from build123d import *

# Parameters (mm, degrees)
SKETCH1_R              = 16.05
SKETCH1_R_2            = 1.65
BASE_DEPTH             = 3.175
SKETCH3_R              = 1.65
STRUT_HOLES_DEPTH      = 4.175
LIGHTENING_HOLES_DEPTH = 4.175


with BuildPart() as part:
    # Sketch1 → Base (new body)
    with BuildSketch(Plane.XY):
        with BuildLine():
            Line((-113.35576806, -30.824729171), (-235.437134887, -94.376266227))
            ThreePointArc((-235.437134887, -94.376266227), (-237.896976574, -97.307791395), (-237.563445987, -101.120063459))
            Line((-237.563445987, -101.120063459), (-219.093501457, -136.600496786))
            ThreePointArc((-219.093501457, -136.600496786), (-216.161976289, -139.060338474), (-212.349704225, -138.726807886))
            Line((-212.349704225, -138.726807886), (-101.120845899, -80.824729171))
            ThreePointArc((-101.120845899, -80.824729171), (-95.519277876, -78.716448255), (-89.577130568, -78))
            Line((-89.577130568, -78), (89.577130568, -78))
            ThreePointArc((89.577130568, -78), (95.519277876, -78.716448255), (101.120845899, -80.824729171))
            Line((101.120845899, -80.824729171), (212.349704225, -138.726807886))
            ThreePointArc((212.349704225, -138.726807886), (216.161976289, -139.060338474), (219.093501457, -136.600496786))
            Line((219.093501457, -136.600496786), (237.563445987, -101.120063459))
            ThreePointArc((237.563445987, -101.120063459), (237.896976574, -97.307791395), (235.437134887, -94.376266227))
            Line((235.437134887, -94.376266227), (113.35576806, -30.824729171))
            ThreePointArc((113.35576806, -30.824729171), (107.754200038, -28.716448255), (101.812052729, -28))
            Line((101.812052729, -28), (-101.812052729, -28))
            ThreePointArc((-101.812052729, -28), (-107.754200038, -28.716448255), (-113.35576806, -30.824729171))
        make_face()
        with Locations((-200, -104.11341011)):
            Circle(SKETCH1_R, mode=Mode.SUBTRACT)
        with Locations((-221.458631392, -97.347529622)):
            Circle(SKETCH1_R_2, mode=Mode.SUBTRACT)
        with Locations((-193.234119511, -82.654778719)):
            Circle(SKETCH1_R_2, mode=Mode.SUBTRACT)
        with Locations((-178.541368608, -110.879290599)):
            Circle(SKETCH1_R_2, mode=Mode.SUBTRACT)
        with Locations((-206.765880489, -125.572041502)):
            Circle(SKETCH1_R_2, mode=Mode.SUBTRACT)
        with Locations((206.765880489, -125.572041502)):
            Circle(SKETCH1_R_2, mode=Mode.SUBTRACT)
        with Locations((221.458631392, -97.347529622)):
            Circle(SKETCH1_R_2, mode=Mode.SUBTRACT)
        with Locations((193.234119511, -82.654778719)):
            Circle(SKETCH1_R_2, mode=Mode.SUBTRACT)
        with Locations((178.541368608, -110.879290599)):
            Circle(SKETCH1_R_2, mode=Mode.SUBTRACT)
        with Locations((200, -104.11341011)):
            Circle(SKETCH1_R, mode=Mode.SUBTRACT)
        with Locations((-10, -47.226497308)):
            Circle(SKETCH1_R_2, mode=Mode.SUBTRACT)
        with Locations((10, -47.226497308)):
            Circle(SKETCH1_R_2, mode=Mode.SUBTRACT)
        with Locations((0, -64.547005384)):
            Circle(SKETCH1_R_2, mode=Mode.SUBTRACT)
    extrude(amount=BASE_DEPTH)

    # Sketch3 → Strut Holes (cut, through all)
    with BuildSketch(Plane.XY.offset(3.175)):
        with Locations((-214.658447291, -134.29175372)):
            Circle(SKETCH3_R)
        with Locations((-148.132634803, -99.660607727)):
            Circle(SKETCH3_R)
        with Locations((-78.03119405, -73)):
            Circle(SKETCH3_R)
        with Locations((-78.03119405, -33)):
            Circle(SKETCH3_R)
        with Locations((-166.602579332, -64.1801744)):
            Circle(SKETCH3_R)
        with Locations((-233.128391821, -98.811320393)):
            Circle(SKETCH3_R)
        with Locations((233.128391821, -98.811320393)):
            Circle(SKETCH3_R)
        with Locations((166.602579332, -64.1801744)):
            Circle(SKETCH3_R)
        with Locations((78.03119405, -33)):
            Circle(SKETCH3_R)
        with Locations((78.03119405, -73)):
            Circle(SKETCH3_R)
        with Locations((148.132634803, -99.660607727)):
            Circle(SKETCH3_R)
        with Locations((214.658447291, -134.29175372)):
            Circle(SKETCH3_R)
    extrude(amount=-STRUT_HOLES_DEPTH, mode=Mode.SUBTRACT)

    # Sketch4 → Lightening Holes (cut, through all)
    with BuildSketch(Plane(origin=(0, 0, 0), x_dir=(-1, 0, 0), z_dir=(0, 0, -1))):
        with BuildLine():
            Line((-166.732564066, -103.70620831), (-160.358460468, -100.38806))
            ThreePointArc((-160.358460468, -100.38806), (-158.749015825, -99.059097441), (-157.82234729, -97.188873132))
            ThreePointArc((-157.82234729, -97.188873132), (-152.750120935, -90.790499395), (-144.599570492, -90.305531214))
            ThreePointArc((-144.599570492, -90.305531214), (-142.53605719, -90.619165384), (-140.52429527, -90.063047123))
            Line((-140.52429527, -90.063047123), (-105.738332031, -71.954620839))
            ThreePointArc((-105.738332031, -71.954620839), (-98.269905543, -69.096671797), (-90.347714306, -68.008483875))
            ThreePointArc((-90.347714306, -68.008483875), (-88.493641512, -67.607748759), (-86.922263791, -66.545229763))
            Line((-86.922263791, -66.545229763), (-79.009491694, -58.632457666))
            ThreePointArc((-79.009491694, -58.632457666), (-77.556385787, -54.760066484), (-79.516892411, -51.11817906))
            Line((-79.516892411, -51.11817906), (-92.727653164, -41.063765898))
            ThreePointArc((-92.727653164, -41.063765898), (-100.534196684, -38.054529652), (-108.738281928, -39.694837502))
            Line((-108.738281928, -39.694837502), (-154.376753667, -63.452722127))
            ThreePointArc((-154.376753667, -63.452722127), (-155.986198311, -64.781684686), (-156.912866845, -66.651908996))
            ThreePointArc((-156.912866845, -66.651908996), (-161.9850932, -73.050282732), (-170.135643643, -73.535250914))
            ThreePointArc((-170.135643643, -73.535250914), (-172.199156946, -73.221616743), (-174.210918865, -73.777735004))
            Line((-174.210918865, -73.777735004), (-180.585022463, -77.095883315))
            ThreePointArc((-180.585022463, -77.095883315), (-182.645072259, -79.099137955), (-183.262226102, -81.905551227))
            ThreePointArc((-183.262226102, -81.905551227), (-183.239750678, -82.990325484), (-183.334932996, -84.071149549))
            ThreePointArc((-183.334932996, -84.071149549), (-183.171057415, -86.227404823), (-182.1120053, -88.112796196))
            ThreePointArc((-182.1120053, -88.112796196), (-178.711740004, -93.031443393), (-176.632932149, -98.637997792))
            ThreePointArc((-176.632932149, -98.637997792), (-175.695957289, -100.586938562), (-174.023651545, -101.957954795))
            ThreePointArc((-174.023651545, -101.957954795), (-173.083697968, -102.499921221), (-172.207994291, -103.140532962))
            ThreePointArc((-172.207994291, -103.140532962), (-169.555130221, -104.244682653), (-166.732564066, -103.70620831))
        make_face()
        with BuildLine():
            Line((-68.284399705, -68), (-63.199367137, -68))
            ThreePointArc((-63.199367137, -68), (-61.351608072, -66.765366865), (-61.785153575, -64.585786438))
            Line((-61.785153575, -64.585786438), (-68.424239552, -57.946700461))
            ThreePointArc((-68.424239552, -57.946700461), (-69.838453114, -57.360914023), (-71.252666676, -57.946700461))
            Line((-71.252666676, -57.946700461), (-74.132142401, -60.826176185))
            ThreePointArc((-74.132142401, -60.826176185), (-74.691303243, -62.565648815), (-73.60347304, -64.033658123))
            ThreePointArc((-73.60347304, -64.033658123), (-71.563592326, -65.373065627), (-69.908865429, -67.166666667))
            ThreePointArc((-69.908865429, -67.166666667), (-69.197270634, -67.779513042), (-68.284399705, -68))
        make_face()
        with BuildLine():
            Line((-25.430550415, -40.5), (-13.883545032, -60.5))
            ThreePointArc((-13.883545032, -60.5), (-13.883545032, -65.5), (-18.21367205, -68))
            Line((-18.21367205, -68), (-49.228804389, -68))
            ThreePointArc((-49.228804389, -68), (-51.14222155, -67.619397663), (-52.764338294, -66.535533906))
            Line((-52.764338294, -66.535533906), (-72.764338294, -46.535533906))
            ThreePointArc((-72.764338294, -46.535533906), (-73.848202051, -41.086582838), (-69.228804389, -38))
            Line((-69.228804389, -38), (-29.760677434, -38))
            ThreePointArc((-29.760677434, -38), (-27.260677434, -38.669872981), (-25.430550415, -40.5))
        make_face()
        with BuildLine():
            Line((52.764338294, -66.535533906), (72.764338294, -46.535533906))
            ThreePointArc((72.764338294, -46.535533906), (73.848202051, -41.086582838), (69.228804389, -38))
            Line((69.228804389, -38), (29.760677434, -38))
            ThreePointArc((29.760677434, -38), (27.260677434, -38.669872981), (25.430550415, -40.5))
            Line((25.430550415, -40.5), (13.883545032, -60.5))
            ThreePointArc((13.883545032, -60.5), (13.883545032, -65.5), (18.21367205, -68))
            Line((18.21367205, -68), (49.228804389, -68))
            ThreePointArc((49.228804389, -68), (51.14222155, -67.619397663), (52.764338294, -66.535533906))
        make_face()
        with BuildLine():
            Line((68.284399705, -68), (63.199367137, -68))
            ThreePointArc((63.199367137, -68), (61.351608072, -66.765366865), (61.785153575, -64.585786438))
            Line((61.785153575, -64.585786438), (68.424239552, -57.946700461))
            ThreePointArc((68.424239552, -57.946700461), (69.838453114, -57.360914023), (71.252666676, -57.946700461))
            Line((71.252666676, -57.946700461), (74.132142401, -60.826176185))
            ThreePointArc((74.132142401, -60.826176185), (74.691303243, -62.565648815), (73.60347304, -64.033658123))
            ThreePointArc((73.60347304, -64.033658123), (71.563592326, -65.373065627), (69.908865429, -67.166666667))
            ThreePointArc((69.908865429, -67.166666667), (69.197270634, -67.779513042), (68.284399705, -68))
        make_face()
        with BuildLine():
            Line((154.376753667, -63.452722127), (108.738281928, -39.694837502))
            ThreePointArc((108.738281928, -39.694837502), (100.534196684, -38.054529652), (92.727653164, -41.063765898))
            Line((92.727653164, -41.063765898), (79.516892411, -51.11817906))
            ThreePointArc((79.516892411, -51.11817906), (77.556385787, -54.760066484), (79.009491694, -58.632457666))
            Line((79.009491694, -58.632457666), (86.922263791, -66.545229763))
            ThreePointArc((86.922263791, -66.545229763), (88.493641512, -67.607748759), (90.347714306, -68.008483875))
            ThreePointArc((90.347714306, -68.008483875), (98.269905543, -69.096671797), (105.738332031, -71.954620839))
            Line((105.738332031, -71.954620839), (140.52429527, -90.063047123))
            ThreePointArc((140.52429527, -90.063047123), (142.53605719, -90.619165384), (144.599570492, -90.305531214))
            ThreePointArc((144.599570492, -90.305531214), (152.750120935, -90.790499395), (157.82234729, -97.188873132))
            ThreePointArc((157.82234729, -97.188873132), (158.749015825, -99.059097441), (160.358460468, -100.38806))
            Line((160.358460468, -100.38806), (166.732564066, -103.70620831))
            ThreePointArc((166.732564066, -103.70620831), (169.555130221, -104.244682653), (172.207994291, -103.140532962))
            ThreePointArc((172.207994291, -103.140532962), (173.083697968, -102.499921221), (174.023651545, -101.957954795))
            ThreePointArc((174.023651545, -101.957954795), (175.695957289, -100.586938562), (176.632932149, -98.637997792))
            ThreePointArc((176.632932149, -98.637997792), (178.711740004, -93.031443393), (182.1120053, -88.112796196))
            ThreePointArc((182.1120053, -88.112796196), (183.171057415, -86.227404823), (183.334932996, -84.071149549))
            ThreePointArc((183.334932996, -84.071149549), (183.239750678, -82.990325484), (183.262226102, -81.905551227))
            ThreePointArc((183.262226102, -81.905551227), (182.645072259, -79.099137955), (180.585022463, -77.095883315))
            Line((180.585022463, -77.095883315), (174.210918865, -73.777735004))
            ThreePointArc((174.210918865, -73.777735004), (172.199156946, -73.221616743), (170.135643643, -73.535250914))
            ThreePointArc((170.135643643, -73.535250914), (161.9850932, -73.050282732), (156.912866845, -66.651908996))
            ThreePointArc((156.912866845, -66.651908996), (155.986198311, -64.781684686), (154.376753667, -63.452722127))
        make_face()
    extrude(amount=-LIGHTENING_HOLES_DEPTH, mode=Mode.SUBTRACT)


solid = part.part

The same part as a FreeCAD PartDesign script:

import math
import FreeCAD as App
import Part
import Sketcher

V = App.Vector
Q = App.Units.Quantity

doc = App.newDocument("Part")
body = doc.addObject("PartDesign::Body", "Body")

sketch1 = doc.addObject("Sketcher::SketchObject", "Sketch")
body.addObject(sketch1)
sketch1.AttachmentSupport = (doc.XY_Plane, [""])
sketch1.MapMode = "FlatFace"
sketch1.addGeometry(Part.LineSegment(V(-113.4, -30.8, 0), V(-235.4, -94.4, 0)), False)
sketch1.addGeometry(Part.ArcOfCircle(Part.Circle(V(-233.1, -98.8, 0), V(0, 0, 1), 5), math.radians(118), math.radians(207)), False)
sketch1.addGeometry(Part.LineSegment(V(-237.6, -101.1, 0), V(-219.1, -136.6, 0)), False)
sketch1.addGeometry(Part.ArcOfCircle(Part.Circle(V(-214.7, -134.3, 0), V(0, 0, 1), 5), math.radians(-153), math.radians(-62)), False)
sketch1.addGeometry(Part.LineSegment(V(-212.3, -138.7, 0), V(-101.1, -80.8, 0)), False)
sketch1.addGeometry(Part.ArcOfCircle(Part.Circle(V(-89.6, -103, 0), V(0, 0, 1), 25), math.radians(90), math.radians(117)), False)
sketch1.addGeometry(Part.LineSegment(V(-89.6, -78, 0), V(89.6, -78, 0)), False)
sketch1.addGeometry(Part.ArcOfCircle(Part.Circle(V(89.6, -103, 0), V(0, 0, 1), 25), math.radians(63), math.radians(90)), False)
sketch1.addGeometry(Part.LineSegment(V(101.1, -80.8, 0), V(212.3, -138.7, 0)), False)
sketch1.addGeometry(Part.ArcOfCircle(Part.Circle(V(214.7, -134.3, 0), V(0, 0, 1), 5), math.radians(-118), math.radians(-27)), False)
sketch1.addGeometry(Part.LineSegment(V(219.1, -136.6, 0), V(237.6, -101.1, 0)), False)
sketch1.addGeometry(Part.ArcOfCircle(Part.Circle(V(233.1, -98.8, 0), V(0, 0, 1), 5), math.radians(-27), math.radians(62)), False)
sketch1.addGeometry(Part.LineSegment(V(235.4, -94.4, 0), V(113.4, -30.8, 0)), False)
sketch1.addGeometry(Part.ArcOfCircle(Part.Circle(V(101.8, -53, 0), V(0, 0, 1), 25), math.radians(62), math.radians(90)), False)
sketch1.addGeometry(Part.LineSegment(V(101.8, -28, 0), V(-101.8, -28, 0)), False)
sketch1.addGeometry(Part.ArcOfCircle(Part.Circle(V(-101.8, -53, 0), V(0, 0, 1), 25), math.radians(90), math.radians(118)), False)
sketch1.addGeometry(Part.Circle(V(-206.8, -125.6, 0), V(0, 0, 1), 1.6), False)
sketch1.addGeometry(Part.Circle(V(-178.5, -110.9, 0), V(0, 0, 1), 1.6), False)
sketch1.addGeometry(Part.Circle(V(-200, -104.1, 0), V(0, 0, 1), 16.1), False)
sketch1.addGeometry(Part.Circle(V(-221.5, -97.3, 0), V(0, 0, 1), 1.6), False)
sketch1.addGeometry(Part.Circle(V(206.8, -125.6, 0), V(0, 0, 1), 1.6), False)
sketch1.addGeometry(Part.Circle(V(178.5, -110.9, 0), V(0, 0, 1), 1.6), False)
sketch1.addGeometry(Part.Circle(V(200, -104.1, 0), V(0, 0, 1), 16.1), False)
sketch1.addGeometry(Part.Circle(V(221.5, -97.3, 0), V(0, 0, 1), 1.6), False)
sketch1.addGeometry(Part.Circle(V(-193.2, -82.7, 0), V(0, 0, 1), 1.6), False)
sketch1.addGeometry(Part.Circle(V(-10, -47.2, 0), V(0, 0, 1), 1.6), False)
sketch1.addGeometry(Part.Circle(V(193.2, -82.7, 0), V(0, 0, 1), 1.6), False)
sketch1.addGeometry(Part.Circle(V(0, -64.5, 0), V(0, 0, 1), 1.6), False)
sketch1.addGeometry(Part.Circle(V(10, -47.2, 0), V(0, 0, 1), 1.6), False)
sketch1.addConstraint(Sketcher.Constraint("Tangent", 0, 2, 1, 1))
sketch1.addConstraint(Sketcher.Constraint("Tangent", 1, 2, 2, 1))
sketch1.addConstraint(Sketcher.Constraint("Tangent", 2, 2, 3, 1))
sketch1.addConstraint(Sketcher.Constraint("Tangent", 3, 2, 4, 1))
sketch1.addConstraint(Sketcher.Constraint("Tangent", 4, 2, 5, 2))
sketch1.addConstraint(Sketcher.Constraint("Tangent", 5, 1, 6, 1))
sketch1.addConstraint(Sketcher.Constraint("Tangent", 6, 2, 7, 2))
sketch1.addConstraint(Sketcher.Constraint("Tangent", 7, 1, 8, 1))
sketch1.addConstraint(Sketcher.Constraint("Tangent", 8, 2, 9, 1))
sketch1.addConstraint(Sketcher.Constraint("Tangent", 9, 2, 10, 1))
sketch1.addConstraint(Sketcher.Constraint("Tangent", 10, 2, 11, 1))
sketch1.addConstraint(Sketcher.Constraint("Tangent", 11, 2, 12, 1))
sketch1.addConstraint(Sketcher.Constraint("Tangent", 12, 2, 13, 1))
sketch1.addConstraint(Sketcher.Constraint("Tangent", 13, 2, 14, 1))
sketch1.addConstraint(Sketcher.Constraint("Tangent", 14, 2, 15, 1))
sketch1.addConstraint(Sketcher.Constraint("Tangent", 15, 2, 0, 1))
sketch1.addConstraint(Sketcher.Constraint("Horizontal", 6))
sketch1.addConstraint(Sketcher.Constraint("Horizontal", 14))
sketch1.addConstraint(Sketcher.Constraint("Equal", 1, 3))
sketch1.addConstraint(Sketcher.Constraint("Equal", 5, 7))
sketch1.addConstraint(Sketcher.Constraint("Equal", 3, 9))
sketch1.addConstraint(Sketcher.Constraint("Equal", 9, 11))
sketch1.addConstraint(Sketcher.Constraint("Equal", 7, 13))
sketch1.addConstraint(Sketcher.Constraint("Equal", 13, 15))
sketch1.addConstraint(Sketcher.Constraint("Equal", 16, 17))
sketch1.addConstraint(Sketcher.Constraint("Equal", 17, 19))
sketch1.addConstraint(Sketcher.Constraint("Equal", 19, 20))
sketch1.addConstraint(Sketcher.Constraint("Equal", 20, 21))
sketch1.addConstraint(Sketcher.Constraint("Equal", 18, 22))
sketch1.addConstraint(Sketcher.Constraint("Equal", 21, 23))
sketch1.addConstraint(Sketcher.Constraint("Equal", 23, 24))
sketch1.addConstraint(Sketcher.Constraint("Equal", 24, 25))
sketch1.addConstraint(Sketcher.Constraint("Equal", 25, 26))
sketch1.addConstraint(Sketcher.Constraint("Equal", 26, 27))
sketch1.addConstraint(Sketcher.Constraint("Equal", 27, 28))
sketch1.addConstraint(Sketcher.Constraint("Symmetric", 3, 3, 9, 3, -2))
sketch1.addConstraint(Sketcher.Constraint("Symmetric", 1, 3, 11, 3, -2))
sketch1.addConstraint(Sketcher.Constraint("Symmetric", 16, 3, 20, 3, -2))
sketch1.addConstraint(Sketcher.Constraint("Symmetric", 17, 3, 21, 3, -2))
sketch1.addConstraint(Sketcher.Constraint("Symmetric", 18, 3, 22, 3, -2))
sketch1.addConstraint(Sketcher.Constraint("Symmetric", 19, 3, 23, 3, -2))
sketch1.addConstraint(Sketcher.Constraint("Symmetric", 24, 3, 26, 3, -2))
sketch1.addConstraint(Sketcher.Constraint("Symmetric", 25, 3, 28, 3, -2))
sketch1.addConstraint(Sketcher.Constraint("PointOnObject", 27, 3, -2))
sketch1.addConstraint(Sketcher.Constraint("Perpendicular", 0, 2))
sketch1.addConstraint(Sketcher.Constraint("Perpendicular", 2, 4))
sketch1.addConstraint(Sketcher.Constraint("Perpendicular", 8, 10))
sketch1.addConstraint(Sketcher.Constraint("Perpendicular", 10, 12))
sketch1.addConstraint(Sketcher.Constraint("Radius", 1, Q("5 mm")))
sketch1.addConstraint(Sketcher.Constraint("Radius", 5, Q("25 mm")))
sketch1.addConstraint(Sketcher.Constraint("Diameter", 16, Q("3.3 mm")))
sketch1.addConstraint(Sketcher.Constraint("Diameter", 18, Q("32.1 mm")))
sketch1.addConstraint(Sketcher.Constraint("Distance", 2, Q("40 mm")))
sketch1.addConstraint(Sketcher.Constraint("DistanceY", 5, 3, -1, 1, Q("103 mm")))
sketch1.addConstraint(Sketcher.Constraint("DistanceY", 13, 3, -1, 1, Q("53 mm")))
sketch1.addConstraint(Sketcher.Constraint("DistanceX", 18, 3, -1, 1, Q("200 mm")))
sketch1.addConstraint(Sketcher.Constraint("DistanceX", 25, 3, -1, 1, Q("10 mm")))
sketch1.addConstraint(Sketcher.Constraint("Angle", 0, Q("-152.5 deg")))
sketch1.addConstraint(Sketcher.Constraint("DistanceX", 6, 1, 6, 2, Q("179.154261 mm")))
sketch1.addConstraint(Sketcher.Constraint("DistanceX", 2, 2, -1, 1, Q("219.093501 mm")))
sketch1.addConstraint(Sketcher.Constraint("DistanceX", 16, 3, -1, 1, Q("206.76588 mm")))
sketch1.addConstraint(Sketcher.Constraint("DistanceY", 16, 3, -1, 1, Q("125.572042 mm")))
sketch1.addConstraint(Sketcher.Constraint("DistanceX", 17, 3, -1, 1, Q("178.541369 mm")))
sketch1.addConstraint(Sketcher.Constraint("DistanceY", 17, 3, -1, 1, Q("110.879291 mm")))
sketch1.addConstraint(Sketcher.Constraint("DistanceY", 18, 3, -1, 1, Q("104.11341 mm")))
sketch1.addConstraint(Sketcher.Constraint("DistanceX", 19, 3, -1, 1, Q("221.458631 mm")))
sketch1.addConstraint(Sketcher.Constraint("DistanceY", 19, 3, -1, 1, Q("97.34753 mm")))
sketch1.addConstraint(Sketcher.Constraint("DistanceX", 24, 3, -1, 1, Q("193.23412 mm")))
sketch1.addConstraint(Sketcher.Constraint("DistanceY", 24, 3, -1, 1, Q("82.654779 mm")))
sketch1.addConstraint(Sketcher.Constraint("DistanceY", 27, 3, 25, 3, Q("17.320508 mm")))
sketch1.addConstraint(Sketcher.Constraint("DistanceY", 4, 2, 25, 3, Q("33.598232 mm")))
pad1 = doc.addObject("PartDesign::Pad", "Pad")
body.addObject(pad1)
pad1.Profile = sketch1
pad1.Length = 3.175

sketch2 = doc.addObject("Sketcher::SketchObject", "Sketch001")
body.addObject(sketch2)
sketch2.AttachmentSupport = (doc.XY_Plane, [""])
sketch2.MapMode = "FlatFace"
sketch2.AttachmentOffset = App.Placement(V(0, 0, 3.175), App.Rotation())
sketch2.addGeometry(Part.Circle(V(-214.7, -134.3, 0), V(0, 0, 1), 1.6), False)
sketch2.addGeometry(Part.Circle(V(-148.1, -99.7, 0), V(0, 0, 1), 1.6), False)
sketch2.addGeometry(Part.Circle(V(-78, -73, 0), V(0, 0, 1), 1.6), False)
sketch2.addGeometry(Part.Circle(V(-78, -33, 0), V(0, 0, 1), 1.6), False)
sketch2.addGeometry(Part.Circle(V(-166.6, -64.2, 0), V(0, 0, 1), 1.6), False)
sketch2.addGeometry(Part.Circle(V(-233.1, -98.8, 0), V(0, 0, 1), 1.6), False)
sketch2.addGeometry(Part.Circle(V(233.1, -98.8, 0), V(0, 0, 1), 1.6), False)
sketch2.addGeometry(Part.Circle(V(166.6, -64.2, 0), V(0, 0, 1), 1.6), False)
sketch2.addGeometry(Part.Circle(V(78, -33, 0), V(0, 0, 1), 1.6), False)
sketch2.addGeometry(Part.Circle(V(78, -73, 0), V(0, 0, 1), 1.6), False)
sketch2.addGeometry(Part.Circle(V(148.1, -99.7, 0), V(0, 0, 1), 1.6), False)
sketch2.addGeometry(Part.Circle(V(214.7, -134.3, 0), V(0, 0, 1), 1.6), False)
sketch2.addConstraint(Sketcher.Constraint("Equal", 0, 1))
sketch2.addConstraint(Sketcher.Constraint("Equal", 1, 2))
sketch2.addConstraint(Sketcher.Constraint("Equal", 2, 3))
sketch2.addConstraint(Sketcher.Constraint("Equal", 3, 4))
sketch2.addConstraint(Sketcher.Constraint("Equal", 4, 5))
sketch2.addConstraint(Sketcher.Constraint("Equal", 5, 6))
sketch2.addConstraint(Sketcher.Constraint("Equal", 6, 7))
sketch2.addConstraint(Sketcher.Constraint("Equal", 7, 8))
sketch2.addConstraint(Sketcher.Constraint("Equal", 8, 9))
sketch2.addConstraint(Sketcher.Constraint("Equal", 9, 10))
sketch2.addConstraint(Sketcher.Constraint("Equal", 10, 11))
sketch2.addConstraint(Sketcher.Constraint("Symmetric", 5, 3, 6, 3, -2))
sketch2.addConstraint(Sketcher.Constraint("Symmetric", 4, 3, 7, 3, -2))
sketch2.addConstraint(Sketcher.Constraint("Symmetric", 3, 3, 8, 3, -2))
sketch2.addConstraint(Sketcher.Constraint("Symmetric", 2, 3, 9, 3, -2))
sketch2.addConstraint(Sketcher.Constraint("Symmetric", 1, 3, 10, 3, -2))
sketch2.addConstraint(Sketcher.Constraint("Symmetric", 0, 3, 11, 3, -2))
sketch2.addConstraint(Sketcher.Constraint("Vertical", 2, 3, 3, 3))
sketch2.addConstraint(Sketcher.Constraint("Diameter", 0, Q("3.3 mm")))
sketch2.addConstraint(Sketcher.Constraint("DistanceY", 2, 3, -1, 1, Q("73 mm")))
sketch2.addConstraint(Sketcher.Constraint("DistanceY", 3, 3, -1, 1, Q("33 mm")))
sketch2.addConstraint(Sketcher.Constraint("DistanceX", 4, 3, -1, 1, Q("166.602579 mm")))
sketch2.addConstraint(Sketcher.Constraint("DistanceX", 5, 3, -1, 1, Q("233.128392 mm")))
sketch2.addConstraint(Sketcher.Constraint("DistanceY", 5, 3, -1, 1, Q("98.81132 mm")))
sketch2.addConstraint(Sketcher.Constraint("DistanceX", 1, 3, 2, 3, Q("70.101441 mm")))
sketch2.addConstraint(Sketcher.Constraint("DistanceY", 0, 3, 4, 3, Q("70.111579 mm")))
sketch2.addConstraint(Sketcher.Constraint("DistanceX", 0, 3, 6, 3, Q("447.786839 mm")))
sketch2.addConstraint(Sketcher.Constraint("DistanceX", 3, 3, 8, 3, Q("156.062388 mm")))
sketch2.addConstraint(Sketcher.Constraint("DistanceY", 0, 3, -1, 1, Q("134.291754 mm")))
sketch2.addConstraint(Sketcher.Constraint("DistanceY", 1, 3, -1, 1, Q("99.660608 mm")))
pocket1 = doc.addObject("PartDesign::Pocket", "Pocket")
body.addObject(pocket1)
pocket1.Profile = sketch2
pocket1.Type = "ThroughAll"

sketch3 = doc.addObject("Sketcher::SketchObject", "Sketch002")
body.addObject(sketch3)
sketch3.AttachmentSupport = (doc.XY_Plane, [""])
sketch3.MapMode = "FlatFace"
sketch3.addGeometry(Part.LineSegment(V(166.732564, -103.706208, 0), V(160.35846, -100.38806, 0)), False)
sketch3.addGeometry(Part.ArcOfCircle(Part.Circle(V(162.667204, -95.953006, 0), V(0, 0, 1), 5), math.radians(-165.689685), math.radians(-117.5)), False)
sketch3.addGeometry(Part.ArcOfCircle(Part.Circle(V(148.132635, -99.660608, 0), V(0, 0, 1), 10), math.radians(14.310315), math.radians(110.689685)), False)
sketch3.addGeometry(Part.ArcOfCircle(Part.Circle(V(142.833038, -85.627993, 0), V(0, 0, 1), 5), math.radians(-117.5), math.radians(-69.310315)), False)
sketch3.addGeometry(Part.LineSegment(V(140.524295, -90.063047, 0), V(105.738332, -71.954621, 0)), False)
sketch3.addGeometry(Part.ArcOfCircle(Part.Circle(V(89.577131, -103, 0), V(0, 0, 1), 35), math.radians(62.5), math.radians(88.738435)), False)
sketch3.addGeometry(Part.ArcOfCircle(Part.Circle(V(90.457798, -63.009696, 0), V(0, 0, 1), 5), math.radians(-135), math.radians(-91.261565)), False)
sketch3.addGeometry(Part.LineSegment(V(86.922264, -66.54523, 0), V(79.009492, -58.632458, 0)), False)
sketch3.addGeometry(Part.ArcOfCircle(Part.Circle(V(82.545026, -55.096924, 0), V(0, 0, 1), 5), math.radians(127.273948), math.radians(225)), False)
sketch3.addGeometry(Part.LineSegment(V(79.516892, -51.118179, 0), V(92.727653, -41.063766, 0)), False)
sketch3.addGeometry(Part.ArcOfCircle(Part.Circle(V(101.812053, -53, 0), V(0, 0, 1), 15), math.radians(62.5), math.radians(127.273948)), False)
sketch3.addGeometry(Part.LineSegment(V(108.738282, -39.694838, 0), V(154.376754, -63.452722, 0)), False)
sketch3.addGeometry(Part.ArcOfCircle(Part.Circle(V(152.068011, -67.887776, 0), V(0, 0, 1), 5), math.radians(14.310315), math.radians(62.5)), False)
sketch3.addGeometry(Part.ArcOfCircle(Part.Circle(V(166.602579, -64.180174, 0), V(0, 0, 1), 10), math.radians(-165.689685), math.radians(-69.310315)), False)
sketch3.addGeometry(Part.ArcOfCircle(Part.Circle(V(171.902176, -78.212789, 0), V(0, 0, 1), 5), math.radians(62.5), math.radians(110.689685)), False)
sketch3.addGeometry(Part.LineSegment(V(174.210919, -73.777735, 0), V(180.585022, -77.095883, 0)), False)
sketch3.addGeometry(Part.ArcOfCircle(Part.Circle(V(178.276279, -81.530937, 0), V(0, 0, 1), 5), math.radians(-4.296784), math.radians(62.5)), False)
sketch3.addGeometry(Part.ArcOfCircle(Part.Circle(V(193.234119, -82.654779, 0), V(0, 0, 1), 10), math.radians(175.703216), math.radians(188.142588)), False)
sketch3.addGeometry(Part.ArcOfCircle(Part.Circle(V(178.38534, -84.779335, 0), V(0, 0, 1), 5), math.radians(-41.812281), math.radians(8.142588)), False)
sketch3.addGeometry(Part.ArcOfCircle(Part.Circle(V(200, -104.11341, 0), V(0, 0, 1), 24), math.radians(138.187719), math.radians(166.812281)), False)
sketch3.addGeometry(Part.ArcOfCircle(Part.Circle(V(171.764793, -97.497287, 0), V(0, 0, 1), 5), math.radians(-63.142588), math.radians(-13.187719)), False)
sketch3.addGeometry(Part.ArcOfCircle(Part.Circle(V(178.541369, -110.879291, 0), V(0, 0, 1), 10), math.radians(116.857412), math.radians(129.296784)), False)
sketch3.addGeometry(Part.ArcOfCircle(Part.Circle(V(169.041307, -99.271154, 0), V(0, 0, 1), 5), math.radians(-117.5), math.radians(-50.703216)), False)
sketch3.addGeometry(Part.LineSegment(V(68.2844, -68, 0), V(63.199367, -68, 0)), False)
sketch3.addGeometry(Part.ArcOfCircle(Part.Circle(V(63.199367, -66, 0), V(0, 0, 1), 2), math.radians(135), math.radians(270)), False)
sketch3.addGeometry(Part.LineSegment(V(61.785154, -64.585786, 0), V(68.42424, -57.9467, 0)), False)
sketch3.addGeometry(Part.ArcOfCircle(Part.Circle(V(69.838453, -59.360914, 0), V(0, 0, 1), 2), math.radians(45), math.radians(135)), False)
sketch3.addGeometry(Part.LineSegment(V(71.252667, -57.9467, 0), V(74.132142, -60.826176, 0)), False)
sketch3.addGeometry(Part.ArcOfCircle(Part.Circle(V(72.717929, -62.24039, 0), V(0, 0, 1), 2), math.radians(-63.719114), math.radians(45)), False)
sketch3.addGeometry(Part.ArcOfCircle(Part.Circle(V(78.031194, -73, 0), V(0, 0, 1), 10), math.radians(116.280886), math.radians(144.314665)), False)
sketch3.addGeometry(Part.ArcOfCircle(Part.Circle(V(68.2844, -66, 0), V(0, 0, 1), 2), math.radians(-90), math.radians(-35.685335)), False)
sketch3.addGeometry(Part.LineSegment(V(13.883545, -60.5, 0), V(25.43055, -40.5, 0)), False)
sketch3.addGeometry(Part.ArcOfCircle(Part.Circle(V(29.760677, -43, 0), V(0, 0, 1), 5), math.radians(90), math.radians(150)), False)
sketch3.addGeometry(Part.LineSegment(V(29.760677, -38, 0), V(69.228804, -38, 0)), False)
sketch3.addGeometry(Part.ArcOfCircle(Part.Circle(V(69.228804, -43, 0), V(0, 0, 1), 5), math.radians(-45), math.radians(90)), False)
sketch3.addGeometry(Part.LineSegment(V(72.764338, -46.535534, 0), V(52.764338, -66.535534, 0)), False)
sketch3.addGeometry(Part.ArcOfCircle(Part.Circle(V(49.228804, -63, 0), V(0, 0, 1), 5), math.radians(-90), math.radians(-45)), False)
sketch3.addGeometry(Part.LineSegment(V(49.228804, -68, 0), V(18.213672, -68, 0)), False)
sketch3.addGeometry(Part.ArcOfCircle(Part.Circle(V(18.213672, -63, 0), V(0, 0, 1), 5), math.radians(150), math.radians(270)), False)
sketch3.addGeometry(Part.LineSegment(V(-52.764338, -66.535534, 0), V(-72.764338, -46.535534, 0)), False)
sketch3.addGeometry(Part.ArcOfCircle(Part.Circle(V(-69.228804, -43, 0), V(0, 0, 1), 5), math.radians(90), math.radians(225)), False)
sketch3.addGeometry(Part.LineSegment(V(-69.228804, -38, 0), V(-29.760677, -38, 0)), False)
sketch3.addGeometry(Part.ArcOfCircle(Part.Circle(V(-29.760677, -43, 0), V(0, 0, 1), 5), math.radians(30), math.radians(90)), False)
sketch3.addGeometry(Part.LineSegment(V(-25.43055, -40.5, 0), V(-13.883545, -60.5, 0)), False)
sketch3.addGeometry(Part.ArcOfCircle(Part.Circle(V(-18.213672, -63, 0), V(0, 0, 1), 5), math.radians(-90), math.radians(30)), False)
sketch3.addGeometry(Part.LineSegment(V(-18.213672, -68, 0), V(-49.228804, -68, 0)), False)
sketch3.addGeometry(Part.ArcOfCircle(Part.Circle(V(-49.228804, -63, 0), V(0, 0, 1), 5), math.radians(-135), math.radians(-90)), False)
sketch3.addGeometry(Part.LineSegment(V(-63.199367, -68, 0), V(-68.2844, -68, 0)), False)
sketch3.addGeometry(Part.ArcOfCircle(Part.Circle(V(-68.2844, -66, 0), V(0, 0, 1), 2), math.radians(-144.314665), math.radians(-90)), False)
sketch3.addGeometry(Part.ArcOfCircle(Part.Circle(V(-78.031194, -73, 0), V(0, 0, 1), 10), math.radians(35.685335), math.radians(63.719114)), False)
sketch3.addGeometry(Part.ArcOfCircle(Part.Circle(V(-72.717929, -62.24039, 0), V(0, 0, 1), 2), math.radians(135), math.radians(243.719114)), False)
sketch3.addGeometry(Part.LineSegment(V(-74.132142, -60.826176, 0), V(-71.252667, -57.9467, 0)), False)
sketch3.addGeometry(Part.ArcOfCircle(Part.Circle(V(-69.838453, -59.360914, 0), V(0, 0, 1), 2), math.radians(45), math.radians(135)), False)
sketch3.addGeometry(Part.LineSegment(V(-68.42424, -57.9467, 0), V(-61.785154, -64.585786, 0)), False)
sketch3.addGeometry(Part.ArcOfCircle(Part.Circle(V(-63.199367, -66, 0), V(0, 0, 1), 2), math.radians(-90), math.radians(45)), False)
sketch3.addGeometry(Part.LineSegment(V(-154.376754, -63.452722, 0), V(-108.738282, -39.694838, 0)), False)
sketch3.addGeometry(Part.ArcOfCircle(Part.Circle(V(-101.812053, -53, 0), V(0, 0, 1), 15), math.radians(52.726052), math.radians(117.5)), False)
sketch3.addGeometry(Part.LineSegment(V(-92.727653, -41.063766, 0), V(-79.516892, -51.118179, 0)), False)
sketch3.addGeometry(Part.ArcOfCircle(Part.Circle(V(-82.545026, -55.096924, 0), V(0, 0, 1), 5), math.radians(-45), math.radians(52.726052)), False)
sketch3.addGeometry(Part.LineSegment(V(-79.009492, -58.632458, 0), V(-86.922264, -66.54523, 0)), False)
sketch3.addGeometry(Part.ArcOfCircle(Part.Circle(V(-90.457798, -63.009696, 0), V(0, 0, 1), 5), math.radians(-88.738435), math.radians(-45)), False)
sketch3.addGeometry(Part.ArcOfCircle(Part.Circle(V(-89.577131, -103, 0), V(0, 0, 1), 35), math.radians(91.261565), math.radians(117.5)), False)
sketch3.addGeometry(Part.LineSegment(V(-105.738332, -71.954621, 0), V(-140.524295, -90.063047, 0)), False)
sketch3.addGeometry(Part.ArcOfCircle(Part.Circle(V(-142.833038, -85.627993, 0), V(0, 0, 1), 5), math.radians(-110.689685), math.radians(-62.5)), False)
sketch3.addGeometry(Part.ArcOfCircle(Part.Circle(V(-148.132635, -99.660608, 0), V(0, 0, 1), 10), math.radians(69.310315), math.radians(165.689685)), False)
sketch3.addGeometry(Part.ArcOfCircle(Part.Circle(V(-162.667204, -95.953006, 0), V(0, 0, 1), 5), math.radians(-62.5), math.radians(-14.310315)), False)
sketch3.addGeometry(Part.LineSegment(V(-160.35846, -100.38806, 0), V(-166.732564, -103.706208, 0)), False)
sketch3.addGeometry(Part.ArcOfCircle(Part.Circle(V(-169.041307, -99.271154, 0), V(0, 0, 1), 5), math.radians(-129.296784), math.radians(-62.5)), False)
sketch3.addGeometry(Part.ArcOfCircle(Part.Circle(V(-178.541369, -110.879291, 0), V(0, 0, 1), 10), math.radians(50.703216), math.radians(63.142588)), False)
sketch3.addGeometry(Part.ArcOfCircle(Part.Circle(V(-171.764793, -97.497287, 0), V(0, 0, 1), 5), math.radians(-166.812281), math.radians(-116.857412)), False)
sketch3.addGeometry(Part.ArcOfCircle(Part.Circle(V(-200, -104.11341, 0), V(0, 0, 1), 24), math.radians(13.187719), math.radians(41.812281)), False)
sketch3.addGeometry(Part.ArcOfCircle(Part.Circle(V(-178.38534, -84.779335, 0), V(0, 0, 1), 5), math.radians(171.857412), math.radians(221.812281)), False)
sketch3.addGeometry(Part.ArcOfCircle(Part.Circle(V(-193.234119, -82.654779, 0), V(0, 0, 1), 10), math.radians(-8.142588), math.radians(4.296784)), False)
sketch3.addGeometry(Part.ArcOfCircle(Part.Circle(V(-178.276279, -81.530937, 0), V(0, 0, 1), 5), math.radians(117.5), math.radians(184.296784)), False)
sketch3.addGeometry(Part.LineSegment(V(-180.585022, -77.095883, 0), V(-174.210919, -73.777735, 0)), False)
sketch3.addGeometry(Part.ArcOfCircle(Part.Circle(V(-171.902176, -78.212789, 0), V(0, 0, 1), 5), math.radians(69.310315), math.radians(117.5)), False)
sketch3.addGeometry(Part.ArcOfCircle(Part.Circle(V(-166.602579, -64.180174, 0), V(0, 0, 1), 10), math.radians(-110.689685), math.radians(-14.310315)), False)
sketch3.addGeometry(Part.ArcOfCircle(Part.Circle(V(-152.068011, -67.887776, 0), V(0, 0, 1), 5), math.radians(117.5), math.radians(165.689685)), False)
sketch3.addConstraint(Sketcher.Constraint("Coincident", 0, 2, 1, 2))
sketch3.addConstraint(Sketcher.Constraint("Coincident", 1, 1, 2, 1))
sketch3.addConstraint(Sketcher.Constraint("Coincident", 2, 2, 3, 2))
sketch3.addConstraint(Sketcher.Constraint("Coincident", 3, 1, 4, 1))
sketch3.addConstraint(Sketcher.Constraint("Coincident", 4, 2, 5, 1))
sketch3.addConstraint(Sketcher.Constraint("Coincident", 5, 2, 6, 2))
sketch3.addConstraint(Sketcher.Constraint("Coincident", 6, 1, 7, 1))
sketch3.addConstraint(Sketcher.Constraint("Coincident", 7, 2, 8, 2))
sketch3.addConstraint(Sketcher.Constraint("Coincident", 8, 1, 9, 1))
sketch3.addConstraint(Sketcher.Constraint("Coincident", 9, 2, 10, 2))
sketch3.addConstraint(Sketcher.Constraint("Coincident", 10, 1, 11, 1))
sketch3.addConstraint(Sketcher.Constraint("Coincident", 11, 2, 12, 2))
sketch3.addConstraint(Sketcher.Constraint("Coincident", 12, 1, 13, 1))
sketch3.addConstraint(Sketcher.Constraint("Coincident", 13, 2, 14, 2))
sketch3.addConstraint(Sketcher.Constraint("Coincident", 14, 1, 15, 1))
sketch3.addConstraint(Sketcher.Constraint("Coincident", 15, 2, 16, 2))
sketch3.addConstraint(Sketcher.Constraint("Coincident", 16, 1, 17, 1))
sketch3.addConstraint(Sketcher.Constraint("Coincident", 17, 2, 18, 2))
sketch3.addConstraint(Sketcher.Constraint("Coincident", 18, 1, 19, 1))
sketch3.addConstraint(Sketcher.Constraint("Coincident", 19, 2, 20, 2))
sketch3.addConstraint(Sketcher.Constraint("Coincident", 20, 1, 21, 1))
sketch3.addConstraint(Sketcher.Constraint("Coincident", 21, 2, 22, 2))
sketch3.addConstraint(Sketcher.Constraint("Coincident", 22, 1, 0, 1))
sketch3.addConstraint(Sketcher.Constraint("Coincident", 23, 2, 24, 2))
sketch3.addConstraint(Sketcher.Constraint("Coincident", 24, 1, 25, 1))
sketch3.addConstraint(Sketcher.Constraint("Coincident", 25, 2, 26, 2))
sketch3.addConstraint(Sketcher.Constraint("Coincident", 26, 1, 27, 1))
sketch3.addConstraint(Sketcher.Constraint("Coincident", 27, 2, 28, 2))
sketch3.addConstraint(Sketcher.Constraint("Coincident", 28, 1, 29, 1))
sketch3.addConstraint(Sketcher.Constraint("Coincident", 29, 2, 30, 2))
sketch3.addConstraint(Sketcher.Constraint("Coincident", 30, 1, 23, 1))
sketch3.addConstraint(Sketcher.Constraint("Coincident", 31, 2, 32, 2))
sketch3.addConstraint(Sketcher.Constraint("Coincident", 32, 1, 33, 1))
sketch3.addConstraint(Sketcher.Constraint("Coincident", 33, 2, 34, 2))
sketch3.addConstraint(Sketcher.Constraint("Coincident", 34, 1, 35, 1))
sketch3.addConstraint(Sketcher.Constraint("Coincident", 35, 2, 36, 2))
sketch3.addConstraint(Sketcher.Constraint("Coincident", 36, 1, 37, 1))
sketch3.addConstraint(Sketcher.Constraint("Coincident", 37, 2, 38, 2))
sketch3.addConstraint(Sketcher.Constraint("Coincident", 38, 1, 31, 1))
sketch3.addConstraint(Sketcher.Constraint("Coincident", 39, 2, 40, 2))
sketch3.addConstraint(Sketcher.Constraint("Coincident", 40, 1, 41, 1))
sketch3.addConstraint(Sketcher.Constraint("Coincident", 41, 2, 42, 2))
sketch3.addConstraint(Sketcher.Constraint("Coincident", 42, 1, 43, 1))
sketch3.addConstraint(Sketcher.Constraint("Coincident", 43, 2, 44, 2))
sketch3.addConstraint(Sketcher.Constraint("Coincident", 44, 1, 45, 1))
sketch3.addConstraint(Sketcher.Constraint("Coincident", 45, 2, 46, 2))
sketch3.addConstraint(Sketcher.Constraint("Coincident", 46, 1, 39, 1))
sketch3.addConstraint(Sketcher.Constraint("Coincident", 47, 2, 48, 2))
sketch3.addConstraint(Sketcher.Constraint("Coincident", 48, 1, 49, 1))
sketch3.addConstraint(Sketcher.Constraint("Coincident", 49, 2, 50, 2))
sketch3.addConstraint(Sketcher.Constraint("Coincident", 50, 1, 51, 1))
sketch3.addConstraint(Sketcher.Constraint("Coincident", 51, 2, 52, 2))
sketch3.addConstraint(Sketcher.Constraint("Coincident", 52, 1, 53, 1))
sketch3.addConstraint(Sketcher.Constraint("Coincident", 53, 2, 54, 2))
sketch3.addConstraint(Sketcher.Constraint("Coincident", 54, 1, 47, 1))
sketch3.addConstraint(Sketcher.Constraint("Coincident", 55, 2, 56, 2))
sketch3.addConstraint(Sketcher.Constraint("Coincident", 56, 1, 57, 1))
sketch3.addConstraint(Sketcher.Constraint("Coincident", 57, 2, 58, 2))
sketch3.addConstraint(Sketcher.Constraint("Coincident", 58, 1, 59, 1))
sketch3.addConstraint(Sketcher.Constraint("Coincident", 59, 2, 60, 2))
sketch3.addConstraint(Sketcher.Constraint("Coincident", 60, 1, 61, 1))
sketch3.addConstraint(Sketcher.Constraint("Coincident", 61, 2, 62, 1))
sketch3.addConstraint(Sketcher.Constraint("Coincident", 62, 2, 63, 2))
sketch3.addConstraint(Sketcher.Constraint("Coincident", 63, 1, 64, 1))
sketch3.addConstraint(Sketcher.Constraint("Coincident", 64, 2, 65, 2))
sketch3.addConstraint(Sketcher.Constraint("Coincident", 65, 1, 66, 1))
sketch3.addConstraint(Sketcher.Constraint("Coincident", 66, 2, 67, 2))
sketch3.addConstraint(Sketcher.Constraint("Coincident", 67, 1, 68, 1))
sketch3.addConstraint(Sketcher.Constraint("Coincident", 68, 2, 69, 2))
sketch3.addConstraint(Sketcher.Constraint("Coincident", 69, 1, 70, 1))
sketch3.addConstraint(Sketcher.Constraint("Coincident", 70, 2, 71, 2))
sketch3.addConstraint(Sketcher.Constraint("Coincident", 71, 1, 72, 1))
sketch3.addConstraint(Sketcher.Constraint("Coincident", 72, 2, 73, 2))
sketch3.addConstraint(Sketcher.Constraint("Coincident", 73, 1, 74, 1))
sketch3.addConstraint(Sketcher.Constraint("Coincident", 74, 2, 75, 2))
sketch3.addConstraint(Sketcher.Constraint("Coincident", 75, 1, 76, 1))
sketch3.addConstraint(Sketcher.Constraint("Coincident", 76, 2, 77, 2))
sketch3.addConstraint(Sketcher.Constraint("Coincident", 77, 1, 55, 1))
sketch3.addConstraint(Sketcher.Constraint("Horizontal", 23))
sketch3.addConstraint(Sketcher.Constraint("Horizontal", 33))
sketch3.addConstraint(Sketcher.Constraint("Horizontal", 37))
sketch3.addConstraint(Sketcher.Constraint("Horizontal", 41))
sketch3.addConstraint(Sketcher.Constraint("Horizontal", 45))
sketch3.addConstraint(Sketcher.Constraint("Horizontal", 47))
sketch3.addConstraint(Sketcher.Constraint("Radius", 1, Q("5 mm")))
sketch3.addConstraint(Sketcher.Constraint("Radius", 2, Q("10 mm")))
sketch3.addConstraint(Sketcher.Constraint("Radius", 3, Q("5 mm")))
sketch3.addConstraint(Sketcher.Constraint("Radius", 5, Q("35 mm")))
sketch3.addConstraint(Sketcher.Constraint("Radius", 6, Q("5 mm")))
sketch3.addConstraint(Sketcher.Constraint("Radius", 8, Q("5 mm")))
sketch3.addConstraint(Sketcher.Constraint("Radius", 10, Q("15 mm")))
sketch3.addConstraint(Sketcher.Constraint("Radius", 12, Q("5 mm")))
sketch3.addConstraint(Sketcher.Constraint("Radius", 13, Q("10 mm")))
sketch3.addConstraint(Sketcher.Constraint("Radius", 14, Q("5 mm")))
sketch3.addConstraint(Sketcher.Constraint("Radius", 16, Q("5 mm")))
sketch3.addConstraint(Sketcher.Constraint("Radius", 17, Q("10 mm")))
sketch3.addConstraint(Sketcher.Constraint("Radius", 18, Q("5 mm")))
sketch3.addConstraint(Sketcher.Constraint("Radius", 19, Q("24 mm")))
sketch3.addConstraint(Sketcher.Constraint("Radius", 20, Q("5 mm")))
sketch3.addConstraint(Sketcher.Constraint("Radius", 21, Q("10 mm")))
sketch3.addConstraint(Sketcher.Constraint("Radius", 22, Q("5 mm")))
sketch3.addConstraint(Sketcher.Constraint("Radius", 24, Q("2 mm")))
sketch3.addConstraint(Sketcher.Constraint("Radius", 26, Q("2 mm")))
sketch3.addConstraint(Sketcher.Constraint("Radius", 28, Q("2 mm")))
sketch3.addConstraint(Sketcher.Constraint("Radius", 29, Q("10 mm")))
sketch3.addConstraint(Sketcher.Constraint("Radius", 30, Q("2 mm")))
sketch3.addConstraint(Sketcher.Constraint("Radius", 32, Q("5 mm")))
sketch3.addConstraint(Sketcher.Constraint("Radius", 34, Q("5 mm")))
sketch3.addConstraint(Sketcher.Constraint("Radius", 36, Q("5 mm")))
sketch3.addConstraint(Sketcher.Constraint("Radius", 38, Q("5 mm")))
sketch3.addConstraint(Sketcher.Constraint("Radius", 40, Q("5 mm")))
sketch3.addConstraint(Sketcher.Constraint("Radius", 42, Q("5 mm")))
sketch3.addConstraint(Sketcher.Constraint("Radius", 44, Q("5 mm")))
sketch3.addConstraint(Sketcher.Constraint("Radius", 46, Q("5 mm")))
sketch3.addConstraint(Sketcher.Constraint("Radius", 48, Q("2 mm")))
sketch3.addConstraint(Sketcher.Constraint("Radius", 49, Q("10 mm")))
sketch3.addConstraint(Sketcher.Constraint("Radius", 50, Q("2 mm")))
sketch3.addConstraint(Sketcher.Constraint("Radius", 52, Q("2 mm")))
sketch3.addConstraint(Sketcher.Constraint("Radius", 54, Q("2 mm")))
sketch3.addConstraint(Sketcher.Constraint("Radius", 56, Q("15 mm")))
sketch3.addConstraint(Sketcher.Constraint("Radius", 58, Q("5 mm")))
sketch3.addConstraint(Sketcher.Constraint("Radius", 60, Q("5 mm")))
sketch3.addConstraint(Sketcher.Constraint("Radius", 61, Q("35 mm")))
sketch3.addConstraint(Sketcher.Constraint("Radius", 63, Q("5 mm")))
sketch3.addConstraint(Sketcher.Constraint("Radius", 64, Q("10 mm")))
sketch3.addConstraint(Sketcher.Constraint("Radius", 65, Q("5 mm")))
sketch3.addConstraint(Sketcher.Constraint("Radius", 67, Q("5 mm")))
sketch3.addConstraint(Sketcher.Constraint("Radius", 68, Q("10 mm")))
sketch3.addConstraint(Sketcher.Constraint("Radius", 69, Q("5 mm")))
sketch3.addConstraint(Sketcher.Constraint("Radius", 70, Q("24 mm")))
sketch3.addConstraint(Sketcher.Constraint("Radius", 71, Q("5 mm")))
sketch3.addConstraint(Sketcher.Constraint("Radius", 72, Q("10 mm")))
sketch3.addConstraint(Sketcher.Constraint("Radius", 73, Q("5 mm")))
sketch3.addConstraint(Sketcher.Constraint("Radius", 75, Q("5 mm")))
sketch3.addConstraint(Sketcher.Constraint("Radius", 76, Q("10 mm")))
sketch3.addConstraint(Sketcher.Constraint("Radius", 77, Q("5 mm")))
sketch3.addConstraint(Sketcher.Constraint("DistanceY", 5, 3, -1, 1, Q("103 mm")))
sketch3.addConstraint(Sketcher.Constraint("DistanceY", 10, 3, -1, 1, Q("53 mm")))
sketch3.addConstraint(Sketcher.Constraint("DistanceX", -1, 1, 19, 3, Q("200 mm")))
sketch3.addConstraint(Sketcher.Constraint("DistanceY", 24, 3, -1, 1, Q("66 mm")))
sketch3.addConstraint(Sketcher.Constraint("DistanceY", 29, 3, -1, 1, Q("73 mm")))
sketch3.addConstraint(Sketcher.Constraint("DistanceY", 32, 3, -1, 1, Q("43 mm")))
sketch3.addConstraint(Sketcher.Constraint("DistanceY", 36, 3, -1, 1, Q("63 mm")))
sketch3.addConstraint(Sketcher.Constraint("DistanceY", 40, 3, -1, 1, Q("43 mm")))
sketch3.addConstraint(Sketcher.Constraint("DistanceY", 44, 3, -1, 1, Q("63 mm")))
sketch3.addConstraint(Sketcher.Constraint("DistanceY", 48, 3, -1, 1, Q("66 mm")))
sketch3.addConstraint(Sketcher.Constraint("DistanceY", 49, 3, -1, 1, Q("73 mm")))
sketch3.addConstraint(Sketcher.Constraint("DistanceY", 56, 3, -1, 1, Q("53 mm")))
sketch3.addConstraint(Sketcher.Constraint("DistanceY", 61, 3, -1, 1, Q("103 mm")))
sketch3.addConstraint(Sketcher.Constraint("DistanceX", 70, 3, -1, 1, Q("200 mm")))
sketch3.addConstraint(Sketcher.Constraint("DistanceY", 31, 2, -1, 1, Q("40.5 mm")))
sketch3.addConstraint(Sketcher.Constraint("DistanceY", 38, 1, -1, 1, Q("60.5 mm")))
sketch3.addConstraint(Sketcher.Constraint("DistanceY", 42, 1, -1, 1, Q("40.5 mm")))
sketch3.addConstraint(Sketcher.Constraint("DistanceY", 43, 2, -1, 1, Q("60.5 mm")))
sketch3.addConstraint(Sketcher.Constraint("DistanceX", -1, 1, 30, 3, Q("68.2844 mm")))
sketch3.addConstraint(Sketcher.Constraint("DistanceX", 48, 3, -1, 1, Q("68.2844 mm")))
sketch3.addConstraint(Sketcher.Constraint("DistanceY", 25, 2, -1, 1, Q("57.9467 mm")))
sketch3.addConstraint(Sketcher.Constraint("DistanceY", 26, 1, -1, 1, Q("57.9467 mm")))
sketch3.addConstraint(Sketcher.Constraint("DistanceX", -1, 1, 30, 1, Q("68.2844 mm")))
sketch3.addConstraint(Sketcher.Constraint("DistanceX", 47, 2, -1, 1, Q("68.2844 mm")))
sketch3.addConstraint(Sketcher.Constraint("DistanceY", 51, 2, -1, 1, Q("57.9467 mm")))
sketch3.addConstraint(Sketcher.Constraint("DistanceY", 52, 1, -1, 1, Q("57.9467 mm")))
sketch3.addConstraint(Sketcher.Constraint("Distance", 0, Q("7.186049 mm")))
sketch3.addConstraint(Sketcher.Constraint("Distance", 7, Q("11.19035 mm")))
sketch3.addConstraint(Sketcher.Constraint("Distance", 9, Q("16.601669 mm")))
sketch3.addConstraint(Sketcher.Constraint("Distance", 11, Q("51.451989 mm")))
sketch3.addConstraint(Sketcher.Constraint("Distance", 15, Q("7.186049 mm")))
sketch3.addConstraint(Sketcher.Constraint("Distance", 31, Q("23.094011 mm")))
sketch3.addConstraint(Sketcher.Constraint("Distance", 35, Q("28.284271 mm")))
sketch3.addConstraint(Sketcher.Constraint("Distance", 39, Q("28.284271 mm")))
sketch3.addConstraint(Sketcher.Constraint("Distance", 43, Q("23.094011 mm")))
sketch3.addConstraint(Sketcher.Constraint("Distance", 55, Q("51.451989 mm")))
sketch3.addConstraint(Sketcher.Constraint("Distance", 57, Q("16.601669 mm")))
sketch3.addConstraint(Sketcher.Constraint("Distance", 59, Q("11.19035 mm")))
sketch3.addConstraint(Sketcher.Constraint("Distance", 66, Q("7.186049 mm")))
sketch3.addConstraint(Sketcher.Constraint("Distance", 74, Q("7.186049 mm")))
sketch3.addConstraint(Sketcher.Constraint("DistanceX", 23, 2, 23, 1, Q("5.085033 mm")))
sketch3.addConstraint(Sketcher.Constraint("DistanceX", 33, 1, 33, 2, Q("39.468127 mm")))
sketch3.addConstraint(Sketcher.Constraint("DistanceX", 37, 2, 37, 1, Q("31.015132 mm")))
sketch3.addConstraint(Sketcher.Constraint("DistanceX", 41, 1, 41, 2, Q("39.468127 mm")))
sketch3.addConstraint(Sketcher.Constraint("DistanceX", 45, 2, 45, 1, Q("31.015132 mm")))
sketch3.addConstraint(Sketcher.Constraint("DistanceX", 47, 2, 47, 1, Q("5.085033 mm")))
sketch3.addConstraint(Sketcher.Constraint("DistanceX", -1, 1, 3, 3, Q("142.833038 mm")))
sketch3.addConstraint(Sketcher.Constraint("DistanceX", -1, 1, 5, 3, Q("89.577131 mm")))
sketch3.addConstraint(Sketcher.Constraint("DistanceX", -1, 1, 12, 3, Q("152.068011 mm")))
sketch3.addConstraint(Sketcher.Constraint("DistanceX", -1, 1, 13, 3, Q("166.602579 mm")))
sketch3.addConstraint(Sketcher.Constraint("DistanceY", 14, 3, -1, 1, Q("78.212789 mm")))
sketch3.addConstraint(Sketcher.Constraint("DistanceX", -1, 1, 16, 3, Q("178.276279 mm")))
sketch3.addConstraint(Sketcher.Constraint("DistanceX", -1, 1, 17, 3, Q("193.234119 mm")))
sketch3.addConstraint(Sketcher.Constraint("DistanceY", 17, 3, -1, 1, Q("82.654779 mm")))
sketch3.addConstraint(Sketcher.Constraint("DistanceX", -1, 1, 18, 3, Q("178.38534 mm")))
sketch3.addConstraint(Sketcher.Constraint("DistanceX", -1, 1, 21, 3, Q("178.541369 mm")))
sketch3.addConstraint(Sketcher.Constraint("DistanceY", 21, 3, -1, 1, Q("110.879291 mm")))
sketch3.addConstraint(Sketcher.Constraint("DistanceX", -1, 1, 28, 3, Q("72.717929 mm")))
sketch3.addConstraint(Sketcher.Constraint("DistanceX", 50, 3, -1, 1, Q("72.717929 mm")))
sketch3.addConstraint(Sketcher.Constraint("DistanceX", 61, 3, -1, 1, Q("89.577131 mm")))
sketch3.addConstraint(Sketcher.Constraint("DistanceX", 63, 3, -1, 1, Q("142.833038 mm")))
sketch3.addConstraint(Sketcher.Constraint("DistanceX", 68, 3, -1, 1, Q("178.541369 mm")))
sketch3.addConstraint(Sketcher.Constraint("DistanceY", 68, 3, -1, 1, Q("110.879291 mm")))
sketch3.addConstraint(Sketcher.Constraint("DistanceY", 70, 3, -1, 1, Q("104.11341 mm")))
sketch3.addConstraint(Sketcher.Constraint("DistanceX", 71, 3, -1, 1, Q("178.38534 mm")))
sketch3.addConstraint(Sketcher.Constraint("DistanceX", 72, 3, -1, 1, Q("193.234119 mm")))
sketch3.addConstraint(Sketcher.Constraint("DistanceX", 73, 3, -1, 1, Q("178.276279 mm")))
sketch3.addConstraint(Sketcher.Constraint("DistanceY", 75, 3, -1, 1, Q("78.212789 mm")))
sketch3.addConstraint(Sketcher.Constraint("DistanceX", 76, 3, -1, 1, Q("166.602579 mm")))
sketch3.addConstraint(Sketcher.Constraint("DistanceX", 77, 3, -1, 1, Q("152.068011 mm")))
sketch3.addConstraint(Sketcher.Constraint("DistanceX", -1, 1, 0, 2, Q("160.35846 mm")))
sketch3.addConstraint(Sketcher.Constraint("DistanceY", 0, 2, -1, 1, Q("100.38806 mm")))
sketch3.addConstraint(Sketcher.Constraint("DistanceX", -1, 1, 2, 2, Q("144.59957 mm")))
sketch3.addConstraint(Sketcher.Constraint("DistanceY", 2, 2, -1, 1, Q("90.305531 mm")))
sketch3.addConstraint(Sketcher.Constraint("DistanceY", 4, 2, -1, 1, Q("71.954621 mm")))
sketch3.addConstraint(Sketcher.Constraint("DistanceY", 6, 1, -1, 1, Q("66.54523 mm")))
sketch3.addConstraint(Sketcher.Constraint("DistanceX", -1, 1, 7, 2, Q("79.009492 mm")))
sketch3.addConstraint(Sketcher.Constraint("DistanceY", 8, 1, -1, 1, Q("51.118179 mm")))
sketch3.addConstraint(Sketcher.Constraint("DistanceX", -1, 1, 10, 1, Q("108.738282 mm")))
sketch3.addConstraint(Sketcher.Constraint("DistanceY", 12, 1, -1, 1, Q("66.651909 mm")))
sketch3.addConstraint(Sketcher.Constraint("DistanceY", 13, 2, -1, 1, Q("73.535251 mm")))
sketch3.addConstraint(Sketcher.Constraint("DistanceX", -1, 1, 14, 1, Q("174.210919 mm")))
sketch3.addConstraint(Sketcher.Constraint("DistanceY", 16, 1, -1, 1, Q("81.905551 mm")))
sketch3.addConstraint(Sketcher.Constraint("DistanceY", 17, 2, -1, 1, Q("84.07115 mm")))
sketch3.addConstraint(Sketcher.Constraint("DistanceX", -1, 1, 20, 1, Q("174.023652 mm")))
sketch3.addConstraint(Sketcher.Constraint("DistanceY", 22, 1, -1, 1, Q("103.706208 mm")))
sketch3.addConstraint(Sketcher.Constraint("DistanceX", -1, 1, 25, 2, Q("68.42424 mm")))
sketch3.addConstraint(Sketcher.Constraint("DistanceY", 28, 1, -1, 1, Q("64.033658 mm")))
sketch3.addConstraint(Sketcher.Constraint("DistanceX", -1, 1, 31, 2, Q("25.43055 mm")))
sketch3.addConstraint(Sketcher.Constraint("DistanceX", -1, 1, 34, 1, Q("72.764338 mm")))
sketch3.addConstraint(Sketcher.Constraint("DistanceX", -1, 1, 35, 2, Q("52.764338 mm")))
sketch3.addConstraint(Sketcher.Constraint("DistanceX", 39, 2, -1, 1, Q("72.764338 mm")))
sketch3.addConstraint(Sketcher.Constraint("DistanceX", 42, 1, -1, 1, Q("25.43055 mm")))
sketch3.addConstraint(Sketcher.Constraint("DistanceX", 46, 1, -1, 1, Q("52.764338 mm")))
sketch3.addConstraint(Sketcher.Constraint("DistanceY", 49, 2, -1, 1, Q("64.033658 mm")))
sketch3.addConstraint(Sketcher.Constraint("DistanceX", 52, 1, -1, 1, Q("68.42424 mm")))
sketch3.addConstraint(Sketcher.Constraint("DistanceX", 55, 2, -1, 1, Q("108.738282 mm")))
sketch3.addConstraint(Sketcher.Constraint("DistanceY", 57, 2, -1, 1, Q("51.118179 mm")))
sketch3.addConstraint(Sketcher.Constraint("DistanceX", 58, 1, -1, 1, Q("79.009492 mm")))
sketch3.addConstraint(Sketcher.Constraint("DistanceY", 59, 2, -1, 1, Q("66.54523 mm")))
sketch3.addConstraint(Sketcher.Constraint("DistanceY", 61, 2, -1, 1, Q("71.954621 mm")))
sketch3.addConstraint(Sketcher.Constraint("DistanceX", 63, 1, -1, 1, Q("144.59957 mm")))
sketch3.addConstraint(Sketcher.Constraint("DistanceY", 63, 1, -1, 1, Q("90.305531 mm")))
sketch3.addConstraint(Sketcher.Constraint("DistanceX", 65, 1, -1, 1, Q("160.35846 mm")))
sketch3.addConstraint(Sketcher.Constraint("DistanceY", 65, 1, -1, 1, Q("100.38806 mm")))
sketch3.addConstraint(Sketcher.Constraint("DistanceY", 66, 2, -1, 1, Q("103.706208 mm")))
sketch3.addConstraint(Sketcher.Constraint("DistanceX", 68, 2, -1, 1, Q("174.023652 mm")))
sketch3.addConstraint(Sketcher.Constraint("DistanceY", 71, 1, -1, 1, Q("84.07115 mm")))
sketch3.addConstraint(Sketcher.Constraint("DistanceY", 72, 2, -1, 1, Q("81.905551 mm")))
sketch3.addConstraint(Sketcher.Constraint("DistanceX", 74, 2, -1, 1, Q("174.210919 mm")))
sketch3.addConstraint(Sketcher.Constraint("DistanceY", 75, 1, -1, 1, Q("73.535251 mm")))
sketch3.addConstraint(Sketcher.Constraint("DistanceY", 76, 2, -1, 1, Q("66.651909 mm")))
sketch3.addConstraint(Sketcher.Constraint("Distance", 4, Q("39.217067 mm")))
sketch3.addConstraint(Sketcher.Constraint("Distance", 25, Q("9.389085 mm")))
sketch3.addConstraint(Sketcher.Constraint("Distance", 27, Q("4.072194 mm")))
sketch3.addConstraint(Sketcher.Constraint("Distance", 51, Q("4.072194 mm")))
sketch3.addConstraint(Sketcher.Constraint("Distance", 53, Q("9.389085 mm")))
sketch3.addConstraint(Sketcher.Constraint("Distance", 62, Q("39.217067 mm")))
sketch3.addConstraint(Sketcher.Constraint("DistanceX", -1, 1, 1, 3, Q("162.667204 mm")))
sketch3.addConstraint(Sketcher.Constraint("DistanceX", -1, 1, 6, 3, Q("90.457798 mm")))
sketch3.addConstraint(Sketcher.Constraint("DistanceX", -1, 1, 8, 3, Q("82.545026 mm")))
sketch3.addConstraint(Sketcher.Constraint("DistanceX", -1, 1, 10, 3, Q("101.812053 mm")))
sketch3.addConstraint(Sketcher.Constraint("DistanceY", 12, 3, -1, 1, Q("67.887776 mm")))
sketch3.addConstraint(Sketcher.Constraint("DistanceX", -1, 1, 24, 3, Q("63.199367 mm")))
sketch3.addConstraint(Sketcher.Constraint("DistanceX", -1, 1, 26, 3, Q("69.838453 mm")))
sketch3.addConstraint(Sketcher.Constraint("DistanceX", -1, 1, 34, 3, Q("69.228804 mm")))
sketch3.addConstraint(Sketcher.Constraint("DistanceX", 40, 3, -1, 1, Q("69.228804 mm")))
sketch3.addConstraint(Sketcher.Constraint("DistanceX", 52, 3, -1, 1, Q("69.838453 mm")))
sketch3.addConstraint(Sketcher.Constraint("DistanceX", 54, 3, -1, 1, Q("63.199367 mm")))
sketch3.addConstraint(Sketcher.Constraint("DistanceX", 56, 3, -1, 1, Q("101.812053 mm")))
sketch3.addConstraint(Sketcher.Constraint("DistanceX", 58, 3, -1, 1, Q("82.545026 mm")))
sketch3.addConstraint(Sketcher.Constraint("DistanceY", 58, 3, -1, 1, Q("55.096924 mm")))
sketch3.addConstraint(Sketcher.Constraint("DistanceX", 64, 3, -1, 1, Q("148.132635 mm")))
sketch3.addConstraint(Sketcher.Constraint("DistanceX", 75, 3, -1, 1, Q("171.902176 mm")))
sketch3.addConstraint(Sketcher.Constraint("DistanceX", -1, 1, 1, 1, Q("157.822347 mm")))
sketch3.addConstraint(Sketcher.Constraint("DistanceX", -1, 1, 5, 2, Q("90.347714 mm")))
sketch3.addConstraint(Sketcher.Constraint("DistanceX", -1, 1, 18, 1, Q("182.112005 mm")))
sketch3.addConstraint(Sketcher.Constraint("DistanceX", -1, 1, 19, 2, Q("176.632932 mm")))
sketch3.addConstraint(Sketcher.Constraint("DistanceX", -1, 1, 21, 2, Q("172.207994 mm")))
sketch3.addConstraint(Sketcher.Constraint("DistanceX", -1, 1, 29, 2, Q("69.908865 mm")))
sketch3.addConstraint(Sketcher.Constraint("DistanceX", -1, 1, 32, 1, Q("29.760677 mm")))
sketch3.addConstraint(Sketcher.Constraint("DistanceX", -1, 1, 36, 1, Q("49.228804 mm")))
sketch3.addConstraint(Sketcher.Constraint("DistanceX", 40, 1, -1, 1, Q("69.228804 mm")))
sketch3.addConstraint(Sketcher.Constraint("DistanceX", 44, 1, -1, 1, Q("18.213672 mm")))
sketch3.addConstraint(Sketcher.Constraint("DistanceX", 48, 1, -1, 1, Q("69.908865 mm")))
sketch3.addConstraint(Sketcher.Constraint("DistanceX", 60, 1, -1, 1, Q("90.347714 mm")))
sketch3.addConstraint(Sketcher.Constraint("DistanceX", 64, 2, -1, 1, Q("157.822347 mm")))
sketch3.addConstraint(Sketcher.Constraint("DistanceX", 67, 1, -1, 1, Q("172.207994 mm")))
sketch3.addConstraint(Sketcher.Constraint("DistanceX", 69, 1, -1, 1, Q("176.632932 mm")))
sketch3.addConstraint(Sketcher.Constraint("DistanceX", 70, 2, -1, 1, Q("182.112005 mm")))
pocket2 = doc.addObject("PartDesign::Pocket", "Pocket001")
body.addObject(pocket2)
pocket2.Profile = sketch3
pocket2.Type = "ThroughAll"
pocket2.Reversed = True

doc.recompute()
